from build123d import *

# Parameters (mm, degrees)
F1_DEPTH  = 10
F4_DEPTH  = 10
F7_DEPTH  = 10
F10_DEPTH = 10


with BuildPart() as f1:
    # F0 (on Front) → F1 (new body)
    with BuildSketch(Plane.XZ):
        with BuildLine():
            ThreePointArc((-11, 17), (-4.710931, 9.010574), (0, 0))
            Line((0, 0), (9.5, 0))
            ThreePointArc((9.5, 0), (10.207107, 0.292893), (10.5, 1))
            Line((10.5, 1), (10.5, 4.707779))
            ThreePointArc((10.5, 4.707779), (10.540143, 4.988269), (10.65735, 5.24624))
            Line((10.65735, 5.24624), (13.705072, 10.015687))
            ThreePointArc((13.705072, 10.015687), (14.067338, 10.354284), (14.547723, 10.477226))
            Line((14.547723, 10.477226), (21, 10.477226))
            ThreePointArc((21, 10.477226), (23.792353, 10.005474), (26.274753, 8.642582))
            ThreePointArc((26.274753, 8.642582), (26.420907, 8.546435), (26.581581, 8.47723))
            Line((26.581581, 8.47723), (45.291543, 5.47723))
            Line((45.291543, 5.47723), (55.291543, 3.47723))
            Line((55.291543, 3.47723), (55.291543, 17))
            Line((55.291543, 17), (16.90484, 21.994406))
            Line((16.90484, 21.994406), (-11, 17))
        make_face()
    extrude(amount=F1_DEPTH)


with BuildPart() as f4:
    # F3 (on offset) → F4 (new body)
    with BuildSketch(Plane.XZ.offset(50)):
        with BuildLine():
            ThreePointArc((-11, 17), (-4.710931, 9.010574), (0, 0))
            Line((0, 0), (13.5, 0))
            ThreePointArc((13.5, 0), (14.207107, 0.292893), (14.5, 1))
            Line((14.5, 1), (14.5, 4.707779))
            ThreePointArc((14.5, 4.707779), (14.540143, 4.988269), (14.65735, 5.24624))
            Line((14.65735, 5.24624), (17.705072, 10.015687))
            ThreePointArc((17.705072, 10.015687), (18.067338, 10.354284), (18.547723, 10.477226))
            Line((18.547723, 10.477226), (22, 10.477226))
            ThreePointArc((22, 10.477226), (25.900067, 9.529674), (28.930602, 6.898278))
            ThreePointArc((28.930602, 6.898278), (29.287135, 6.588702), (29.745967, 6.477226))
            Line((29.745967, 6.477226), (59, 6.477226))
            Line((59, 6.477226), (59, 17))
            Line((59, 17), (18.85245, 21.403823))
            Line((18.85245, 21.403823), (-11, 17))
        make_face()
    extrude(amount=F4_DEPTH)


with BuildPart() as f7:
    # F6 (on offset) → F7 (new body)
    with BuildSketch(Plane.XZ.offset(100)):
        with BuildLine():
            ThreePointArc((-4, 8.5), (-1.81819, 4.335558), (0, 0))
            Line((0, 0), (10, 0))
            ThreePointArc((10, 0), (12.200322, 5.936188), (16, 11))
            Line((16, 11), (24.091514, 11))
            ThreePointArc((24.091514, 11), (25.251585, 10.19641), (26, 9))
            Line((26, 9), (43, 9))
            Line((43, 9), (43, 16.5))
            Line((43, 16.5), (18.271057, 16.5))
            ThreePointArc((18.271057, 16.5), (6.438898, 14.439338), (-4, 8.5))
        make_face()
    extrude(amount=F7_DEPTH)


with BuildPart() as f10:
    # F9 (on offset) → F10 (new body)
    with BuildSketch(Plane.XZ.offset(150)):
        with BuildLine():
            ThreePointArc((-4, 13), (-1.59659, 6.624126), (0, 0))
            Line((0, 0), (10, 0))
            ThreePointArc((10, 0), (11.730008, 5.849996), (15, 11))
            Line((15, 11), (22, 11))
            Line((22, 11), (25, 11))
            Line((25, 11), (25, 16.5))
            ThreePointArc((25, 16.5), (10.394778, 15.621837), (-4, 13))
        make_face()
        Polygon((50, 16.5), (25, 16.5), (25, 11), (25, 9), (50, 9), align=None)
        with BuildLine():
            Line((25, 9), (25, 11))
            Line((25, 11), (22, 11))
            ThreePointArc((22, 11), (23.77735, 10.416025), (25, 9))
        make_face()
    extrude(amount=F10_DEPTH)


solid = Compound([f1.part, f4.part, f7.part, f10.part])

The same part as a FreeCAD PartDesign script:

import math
import FreeCAD as App
import Part
import Sketcher
from FreeCAD import Vector
Q = App.Units.Quantity

doc = App.newDocument("Part")
body = doc.addObject("PartDesign::Body", "Body")

# Sketch on XZ plane
sketch1 = body.newObject("Sketcher::SketchObject", "Sketch")
sketch1.AttachmentSupport = (doc.getObject("XZ_Plane"), [""])
sketch1.MapMode = "FlatFace"
sketch1.addGeometry(Part.ArcOfCircle(Part.Circle(Vector(-50.887268, -20.868232, 0), Vector(0, 0, 1), 54.999974), math.radians(22.297921), math.radians(43.512565)), False)
sketch1.addGeometry(Part.LineSegment(Vector(0, 0, 0), Vector(9.5, 0, 0)), False)
sketch1.addGeometry(Part.ArcOfCircle(Part.Circle(Vector(9.500001, 0.999999, 0), Vector(0, 0, 1), 0.999999), math.radians(-90.000043), math.radians(0.000043)), False)
sketch1.addGeometry(Part.LineSegment(Vector(10.5, 1, 0), Vector(10.5, 4.707779, 0)), False)
sketch1.addGeometry(Part.ArcOfCircle(Part.Circle(Vector(11.499994, 4.70778, 0), Vector(0, 0, 1), 0.999994), math.radians(147.420924), math.radians(180.000057)), False)
sketch1.addGeometry(Part.LineSegment(Vector(10.65735, 5.24624, 0), Vector(13.705072, 10.015687, 0)), False)
sketch1.addGeometry(Part.ArcOfCircle(Part.Circle(Vector(14.547723, 9.477226, 0), Vector(0, 0, 1), 1), math.radians(89.999974), math.radians(147.421059)), False)
sketch1.addGeometry(Part.LineSegment(Vector(14.547723, 10.477226, 0), Vector(21, 10.477226, 0)), False)
sketch1.addGeometry(Part.ArcOfCircle(Part.Circle(Vector(21.000001, 1.977233, 0), Vector(0, 0, 1), 8.499993), math.radians(51.642996), math.radians(90.000009)), False)
sketch1.addGeometry(Part.ArcOfCircle(Part.Circle(Vector(26.895308, 9.426735, 0), Vector(0, 0, 1), 0.999992), math.radians(-128.357021), math.radians(-108.284126)), False)
sketch1.addGeometry(Part.LineSegment(Vector(26.581581, 8.47723, 0), Vector(45.291543, 5.47723, 0)), False)
sketch1.addGeometry(Part.LineSegment(Vector(45.291543, 5.47723, 0), Vector(55.291543, 3.47723, 0)), False)
sketch1.addGeometry(Part.LineSegment(Vector(55.291543, 3.47723, 0), Vector(55.291543, 17, 0)), False)
sketch1.addGeometry(Part.LineSegment(Vector(55.291543, 17, 0), Vector(16.90484, 21.994406, 0)), False)
sketch1.addGeometry(Part.LineSegment(Vector(16.90484, 21.994406, 0), Vector(-11, 17, 0)), False)
sketch1.addConstraint(Sketcher.Constraint("Coincident", 0, 1, 1, 1))
sketch1.addConstraint(Sketcher.Constraint("Coincident", 1, 2, 2, 1))
sketch1.addConstraint(Sketcher.Constraint("Coincident", 2, 2, 3, 1))
sketch1.addConstraint(Sketcher.Constraint("Coincident", 3, 2, 4, 2))
sketch1.addConstraint(Sketcher.Constraint("Coincident", 4, 1, 5, 1))
sketch1.addConstraint(Sketcher.Constraint("Coincident", 5, 2, 6, 2))
sketch1.addConstraint(Sketcher.Constraint("Coincident", 6, 1, 7, 1))
sketch1.addConstraint(Sketcher.Constraint("Coincident", 7, 2, 8, 2))
sketch1.addConstraint(Sketcher.Constraint("Coincident", 8, 1, 9, 1))
sketch1.addConstraint(Sketcher.Constraint("Coincident", 9, 2, 10, 1))
sketch1.addConstraint(Sketcher.Constraint("Coincident", 10, 2, 11, 1))
sketch1.addConstraint(Sketcher.Constraint("Coincident", 11, 2, 12, 1))
sketch1.addConstraint(Sketcher.Constraint("Coincident", 12, 2, 13, 1))
sketch1.addConstraint(Sketcher.Constraint("Coincident", 13, 2, 14, 1))
sketch1.addConstraint(Sketcher.Constraint("Coincident", 14, 2, 0, 2))
sketch1.addConstraint(Sketcher.Constraint("Horizontal", 1))
sketch1.addConstraint(Sketcher.Constraint("Vertical", 3))
sketch1.addConstraint(Sketcher.Constraint("Horizontal", 7))
sketch1.addConstraint(Sketcher.Constraint("Vertical", 12))
sketch1.addConstraint(Sketcher.Constraint("Coincident", 0, 1, -1, 1))
sketch1.addConstraint(Sketcher.Constraint("Radius", 2, Q("0.999999 mm")))
sketch1.addConstraint(Sketcher.Constraint("Radius", 6, Q("1 mm")))
sketch1.addConstraint(Sketcher.Constraint("DistanceX", 1, 1, 1, 2, Q("9.5 mm")))
sketch1.addConstraint(Sketcher.Constraint("DistanceX", -1, 1, 8, 3, Q("21.000001 mm")))
sketch1.addConstraint(Sketcher.Constraint("DistanceY", -1, 1, 2, 2, Q("1 mm")))
sketch1.addConstraint(Sketcher.Constraint("DistanceX", -1, 1, 7, 2, Q("21 mm")))
sketch1.addConstraint(Sketcher.Constraint("DistanceY", -1, 1, 12, 2, Q("17 mm")))
sketch1.addConstraint(Sketcher.Constraint("DistanceX", 14, 2, -1, 1, Q("11 mm")))
sketch1.addConstraint(Sketcher.Constraint("DistanceY", -1, 1, 14, 2, Q("17 mm")))
sketch1.addConstraint(Sketcher.Constraint("DistanceX", 1, 2, 2, 2, Q("1 mm")))
sketch1.addConstraint(Sketcher.Constraint("DistanceY", 10, 2, 9, 2, Q("3 mm")))
sketch1.addConstraint(Sketcher.Constraint("DistanceX", 10, 2, 11, 2, Q("10 mm")))
sketch1.addConstraint(Sketcher.Constraint("DistanceY", 11, 2, 10, 2, Q("2 mm")))
sketch1.addConstraint(Sketcher.Constraint("Radius", 0, Q("54.999974 mm")))
sketch1.addConstraint(Sketcher.Constraint("Radius", 4, Q("0.999994 mm")))
sketch1.addConstraint(Sketcher.Constraint("Radius", 8, Q("8.499993 mm")))
sketch1.addConstraint(Sketcher.Constraint("Radius", 9, Q("0.999992 mm")))
sketch1.addConstraint(Sketcher.Constraint("DistanceY", 3, 1, 3, 2, Q("3.707779 mm")))
sketch1.addConstraint(Sketcher.Constraint("DistanceY", 12, 1, 12, 2, Q("13.52277 mm")))
sketch1.addConstraint(Sketcher.Constraint("Distance", 10, Q("18.948949 mm")))
sketch1.addConstraint(Sketcher.Constraint("DistanceX", 7, 1, 7, 2, Q("6.452277 mm")))
sketch1.addConstraint(Sketcher.Constraint("DistanceY", -1, 1, 4, 3, Q("4.70778 mm")))
sketch1.addConstraint(Sketcher.Constraint("DistanceX", -1, 1, 9, 3, Q("26.895308 mm")))
sketch1.addConstraint(Sketcher.Constraint("DistanceX", -1, 1, 4, 1, Q("10.65735 mm")))
sketch1.addConstraint(Sketcher.Constraint("DistanceX", -1, 1, 9, 2, Q("26.581581 mm")))
sketch1.addConstraint(Sketcher.Constraint("DistanceX", -1, 1, 13, 2, Q("16.90484 mm")))
sketch1.addConstraint(Sketcher.Constraint("DistanceX", 4, 3, 6, 3, Q("3.047728 mm")))
sketch1.addConstraint(Sketcher.Constraint("DistanceX", 5, 2, 6, 3, Q("0.842651 mm")))
sketch1.addConstraint(Sketcher.Constraint("DistanceX", 8, 3, 8, 1, Q("5.274752 mm")))
sketch1.addConstraint(Sketcher.Constraint("DistanceY", 6, 1, 13, 2, Q("11.51718 mm")))
pad1 = body.newObject("PartDesign::Pad", "Pad")
pad1.Profile = sketch1
pad1.Length = 10
body2 = doc.addObject("PartDesign::Body", "Body001")

# Sketch on XZ plane
sketch2 = body2.newObject("Sketcher::SketchObject", "Sketch001")
sketch2.AttachmentSupport = (doc.getObject("XZ_Plane001"), [""])
sketch2.MapMode = "FlatFace"
sketch2.AttachmentOffset = App.Placement(Vector(0, 0, 50), App.Rotation())
sketch2.addGeometry(Part.ArcOfCircle(Part.Circle(Vector(-50.887268, -20.868232, 0), Vector(0, 0, 1), 54.999974), math.radians(22.297921), math.radians(43.512565)), False)
sketch2.addGeometry(Part.LineSegment(Vector(0, 0, 0), Vector(13.5, 0, 0)), False)
sketch2.addGeometry(Part.ArcOfCircle(Part.Circle(Vector(13.500001, 0.999999, 0), Vector(0, 0, 1), 0.999999), math.radians(-90.000043), math.radians(0.000043)), False)
sketch2.addGeometry(Part.LineSegment(Vector(14.5, 1, 0), Vector(14.5, 4.707779, 0)), False)
sketch2.addGeometry(Part.ArcOfCircle(Part.Circle(Vector(15.499994, 4.70778, 0), Vector(0, 0, 1), 0.999994), math.radians(147.420924), math.radians(180.000057)), False)
sketch2.addGeometry(Part.LineSegment(Vector(14.65735, 5.24624, 0), Vector(17.705072, 10.015687, 0)), False)
sketch2.addGeometry(Part.ArcOfCircle(Part.Circle(Vector(18.547723, 9.477226, 0), Vector(0, 0, 1), 1), math.radians(89.999974), math.radians(147.421059)), False)
sketch2.addGeometry(Part.LineSegment(Vector(18.547723, 10.477226, 0), Vector(22, 10.477226, 0)), False)
sketch2.addGeometry(Part.ArcOfCircle(Part.Circle(Vector(21.999999, 1.977224, 0), Vector(0, 0, 1), 8.500002), math.radians(35.376543), math.radians(89.999991)), False)
sketch2.addGeometry(Part.ArcOfCircle(Part.Circle(Vector(29.745964, 7.477221, 0), Vector(0, 0, 1), 0.999995), math.radians(-144.623559), math.radians(-89.999826)), False)
sketch2.addGeometry(Part.LineSegment(Vector(29.745967, 6.477226, 0), Vector(59, 6.477226, 0)), False)
sketch2.addGeometry(Part.LineSegment(Vector(59, 6.477226, 0), Vector(59, 17, 0)), False)
sketch2.addGeometry(Part.LineSegment(Vector(59, 17, 0), Vector(18.85245, 21.403823, 0)), False)
sketch2.addGeometry(Part.LineSegment(Vector(18.85245, 21.403823, 0), Vector(-11, 17, 0)), False)
sketch2.addConstraint(Sketcher.Constraint("Coincident", 0, 1, 1, 1))
sketch2.addConstraint(Sketcher.Constraint("Tangent", 1, 2, 2, 1))
sketch2.addConstraint(Sketcher.Constraint("Tangent", 2, 2, 3, 1))
sketch2.addConstraint(Sketcher.Constraint("Tangent", 3, 2, 4, 2))
sketch2.addConstraint(Sketcher.Constraint("Tangent", 4, 1, 5, 1))
sketch2.addConstraint(Sketcher.Constraint("Tangent", 5, 2, 6, 2))
sketch2.addConstraint(Sketcher.Constraint("Tangent", 6, 1, 7, 1))
sketch2.addConstraint(Sketcher.Constraint("Tangent", 7, 2, 8, 2))
sketch2.addConstraint(Sketcher.Constraint("Tangent", 8, 1, 9, 1))
sketch2.addConstraint(Sketcher.Constraint("Coincident", 9, 2, 10, 1))
sketch2.addConstraint(Sketcher.Constraint("Coincident", 10, 2, 11, 1))
sketch2.addConstraint(Sketcher.Constraint("Coincident", 11, 2, 12, 1))
sketch2.addConstraint(Sketcher.Constraint("Coincident", 12, 2, 13, 1))
sketch2.addConstraint(Sketcher.Constraint("Coincident", 13, 2, 0, 2))
sketch2.addConstraint(Sketcher.Constraint("Horizontal", 1))
sketch2.addConstraint(Sketcher.Constraint("Vertical", 3))
sketch2.addConstraint(Sketcher.Constraint("Horizontal", 7))
sketch2.addConstraint(Sketcher.Constraint("Horizontal", 10))
sketch2.addConstraint(Sketcher.Constraint("Vertical", 11))
sketch2.addConstraint(Sketcher.Constraint("Coincident", 0, 1, -1, 1))
sketch2.addConstraint(Sketcher.Constraint("Equal", 2, 6))
sketch2.addConstraint(Sketcher.Constraint("Equal", 4, 9))
sketch2.addConstraint(Sketcher.Constraint("Horizontal", 11, 2, 13, 2))
sketch2.addConstraint(Sketcher.Constraint("Radius", 2, Q("0.999999 mm")))
sketch2.addConstraint(Sketcher.Constraint("DistanceX", 1, 1, 1, 2, Q("13.5 mm")))
sketch2.addConstraint(Sketcher.Constraint("DistanceX", -1, 1, 8, 3, Q("21.999999 mm")))
sketch2.addConstraint(Sketcher.Constraint("DistanceX", -1, 1, 10, 2, Q("59 mm")))
sketch2.addConstraint(Sketcher.Constraint("DistanceY", -1, 1, 11, 2, Q("17 mm")))
sketch2.addConstraint(Sketcher.Constraint("DistanceX", 13, 2, -1, 1, Q("11 mm")))
sketch2.addConstraint(Sketcher.Constraint("DistanceY", 9, 2, 7, 2, Q("4 mm")))
sketch2.addConstraint(Sketcher.Constraint("Radius", 0, Q("54.999974 mm")))
sketch2.addConstraint(Sketcher.Constraint("Radius", 4, Q("0.999994 mm")))
sketch2.addConstraint(Sketcher.Constraint("Radius", 8, Q("8.500002 mm")))
sketch2.addConstraint(Sketcher.Constraint("DistanceY", 3, 1, 3, 2, Q("3.707779 mm")))
sketch2.addConstraint(Sketcher.Constraint("DistanceX", 4, 1, 12, 2, Q("4.1951 mm")))
sketch2.addConstraint(Sketcher.Constraint("DistanceX", 7, 1, 7, 2, Q("3.452277 mm")))
sketch2.addConstraint(Sketcher.Constraint("DistanceX", 10, 1, 10, 2, Q("29.254033 mm")))
sketch2.addConstraint(Sketcher.Constraint("DistanceY", 11, 1, 11, 2, Q("10.522774 mm")))
sketch2.addConstraint(Sketcher.Constraint("Distance", 12, Q("40.388358 mm")))
pad2 = body2.newObject("PartDesign::Pad", "Pad001")
pad2.Profile = sketch2
pad2.Length = 10
body3 = doc.addObject("PartDesign::Body", "Body002")

# Sketch on XZ plane
sketch3 = body3.newObject("Sketcher::SketchObject", "Sketch002")
sketch3.AttachmentSupport = (doc.getObject("XZ_Plane002"), [""])
sketch3.MapMode = "FlatFace"
sketch3.AttachmentOffset = App.Placement(Vector(0, 0, 100), App.Rotation())
sketch3.addGeometry(Part.ArcOfCircle(Part.Circle(Vector(-51.583168, -19.083256, 0), Vector(0, 0, 1), 54.999944), math.radians(20.302015), math.radians(30.100232)), False)
sketch3.addGeometry(Part.LineSegment(Vector(0, 0, 0), Vector(10, 0, 0)), False)
sketch3.addGeometry(Part.ArcOfCircle(Part.Circle(Vector(31.514024, -4.598558, 0), Vector(0, 0, 1), 21.999999), math.radians(134.844325), math.radians(167.934756)), False)
sketch3.addGeometry(Part.LineSegment(Vector(16, 11, 0), Vector(24.091514, 11, 0)), False)
sketch3.addGeometry(Part.ArcOfCircle(Part.Circle(Vector(22.719459, 7.780146, 0), Vector(0, 0, 1), 3.499999), math.radians(20.397415), math.radians(66.920008)), False)
sketch3.addGeometry(Part.LineSegment(Vector(26, 9, 0), Vector(43, 9, 0)), False)
sketch3.addGeometry(Part.LineSegment(Vector(43, 9, 0), Vector(43, 16.5, 0)), False)
sketch3.addGeometry(Part.LineSegment(Vector(43, 16.5, 0), Vector(18.271057, 16.5, 0)), False)
sketch3.addGeometry(Part.ArcOfCircle(Part.Circle(Vector(18.271059, -18.500003, 0), Vector(0, 0, 1), 35.000003), math.radians(90.000003), math.radians(129.517651)), False)
sketch3.addConstraint(Sketcher.Constraint("Coincident", 0, 1, 1, 1))
sketch3.addConstraint(Sketcher.Constraint("Coincident", 1, 2, 2, 2))
sketch3.addConstraint(Sketcher.Constraint("Coincident", 2, 1, 3, 1))
sketch3.addConstraint(Sketcher.Constraint("Coincident", 3, 2, 4, 2))
sketch3.addConstraint(Sketcher.Constraint("Coincident", 4, 1, 5, 1))
sketch3.addConstraint(Sketcher.Constraint("Coincident", 5, 2, 6, 1))
sketch3.addConstraint(Sketcher.Constraint("Coincident", 6, 2, 7, 1))
sketch3.addConstraint(Sketcher.Constraint("Tangent", 7, 2, 8, 1))
sketch3.addConstraint(Sketcher.Constraint("Coincident", 8, 2, 0, 2))
sketch3.addConstraint(Sketcher.Constraint("Horizontal", 1))
sketch3.addConstraint(Sketcher.Constraint("Horizontal", 3))
sketch3.addConstraint(Sketcher.Constraint("Horizontal", 5))
sketch3.addConstraint(Sketcher.Constraint("Vertical", 6))
sketch3.addConstraint(Sketcher.Constraint("Horizontal", 7))
sketch3.addConstraint(Sketcher.Constraint("Coincident", 0, 1, -1, 1))
sketch3.addConstraint(Sketcher.Constraint("Radius", 2, Q("21.999999 mm")))
sketch3.addConstraint(Sketcher.Constraint("Radius", 4, Q("3.499999 mm")))
sketch3.addConstraint(Sketcher.Constraint("DistanceX", 1, 1, 1, 2, Q("10 mm")))
sketch3.addConstraint(Sketcher.Constraint("DistanceX", 5, 1, 5, 2, Q("17 mm")))
sketch3.addConstraint(Sketcher.Constraint("DistanceY", 6, 1, 6, 2, Q("7.5 mm")))
sketch3.addConstraint(Sketcher.Constraint("DistanceX", -1, 1, 2, 1, Q("16 mm")))
sketch3.addConstraint(Sketcher.Constraint("DistanceY", -1, 1, 2, 1, Q("11 mm")))
sketch3.addConstraint(Sketcher.Constraint("DistanceX", -1, 1, 4, 1, Q("26 mm")))
sketch3.addConstraint(Sketcher.Constraint("DistanceY", -1, 1, 4, 1, Q("9 mm")))
sketch3.addConstraint(Sketcher.Constraint("DistanceX", 8, 2, -1, 1, Q("4 mm")))
sketch3.addConstraint(Sketcher.Constraint("DistanceY", 8, 2, 7, 2, Q("8 mm")))
sketch3.addConstraint(Sketcher.Constraint("Radius", 0, Q("54.999944 mm")))
sketch3.addConstraint(Sketcher.Constraint("Radius", 8, Q("35.000003 mm")))
sketch3.addConstraint(Sketcher.Constraint("DistanceY", 0, 3, 4, 3, Q("26.863402 mm")))
pad3 = body3.newObject("PartDesign::Pad", "Pad002")
pad3.Profile = sketch3
pad3.Length = 10
body4 = doc.addObject("PartDesign::Body", "Body003")

# Sketch on XZ plane
sketch4 = body4.newObject("Sketcher::SketchObject", "Sketch003")
sketch4.AttachmentSupport = (doc.getObject("XZ_Plane003"), [""])
sketch4.MapMode = "FlatFace"
sketch4.AttachmentOffset = App.Placement(Vector(0, 0, 150), App.Rotation())
sketch4.addGeometry(Part.ArcOfCircle(Part.Circle(Vector(-54.16438, -9.550578, 0), Vector(0, 0, 1), 54.999942), math.radians(9.999935), math.radians(24.205523)), False)
sketch4.addGeometry(Part.LineSegment(Vector(0, 0, 0), Vector(10, 0, 0)), False)
sketch4.addGeometry(Part.ArcOfCircle(Part.Circle(Vector(31.758069, -3.253668, 0), Vector(0, 0, 1), 21.999998), math.radians(139.616991), math.radians(171.4951)), False)
sketch4.addGeometry(Part.LineSegment(Vector(15, 11, 0), Vector(22, 11, 0)), False)
sketch4.addGeometry(Part.ArcOfCircle(Part.Circle(Vector(21.835899, 7.503848, 0), Vector(0, 0, 1), 3.500001), math.radians(25.307224), math.radians(87.312641)), False)
sketch4.addGeometry(Part.LineSegment(Vector(25, 9, 0), Vector(50, 9, 0)), False)
sketch4.addGeometry(Part.LineSegment(Vector(50, 9, 0), Vector(50, 16.5, 0)), False)
sketch4.addGeometry(Part.LineSegment(Vector(50, 16.5, 0), Vector(25, 16.5, 0)), False)
sketch4.addGeometry(Part.ArcOfCircle(Part.Circle(Vector(24.999994, -105.392809, 0), Vector(0, 0, 1), 121.892809), math.radians(89.999997), math.radians(103.76345)), False)
sketch4.addConstraint(Sketcher.Constraint("Coincident", 0, 1, 1, 1))
sketch4.addConstraint(Sketcher.Constraint("Coincident", 1, 2, 2, 2))
sketch4.addConstraint(Sketcher.Constraint("Coincident", 2, 1, 3, 1))
sketch4.addConstraint(Sketcher.Constraint("Coincident", 3, 2, 4, 2))
sketch4.addConstraint(Sketcher.Constraint("Coincident", 4, 1, 5, 1))
sketch4.addConstraint(Sketcher.Constraint("Coincident", 5, 2, 6, 1))
sketch4.addConstraint(Sketcher.Constraint("Coincident", 6, 2, 7, 1))
sketch4.addConstraint(Sketcher.Constraint("Tangent", 7, 2, 8, 1))
sketch4.addConstraint(Sketcher.Constraint("Coincident", 8, 2, 0, 2))
sketch4.addConstraint(Sketcher.Constraint("Horizontal", 1))
sketch4.addConstraint(Sketcher.Constraint("Horizontal", 3))
sketch4.addConstraint(Sketcher.Constraint("Horizontal", 5))
sketch4.addConstraint(Sketcher.Constraint("Vertical", 6))
sketch4.addConstraint(Sketcher.Constraint("Horizontal", 7))
sketch4.addConstraint(Sketcher.Constraint("Coincident", 0, 1, -1, 1))
sketch4.addConstraint(Sketcher.Constraint("Vertical", 4, 1, 7, 2))
sketch4.addConstraint(Sketcher.Constraint("Radius", 4, Q("3.500001 mm")))
sketch4.addConstraint(Sketcher.Constraint("DistanceX", 1, 1, 1, 2, Q("10 mm")))
sketch4.addConstraint(Sketcher.Constraint("DistanceX", 3, 1, 3, 2, Q("7 mm")))
sketch4.addConstraint(Sketcher.Constraint("DistanceX", 5, 1, 5, 2, Q("25 mm")))
sketch4.addConstraint(Sketcher.Constraint("DistanceY", 6, 1, 6, 2, Q("7.5 mm")))
sketch4.addConstraint(Sketcher.Constraint("DistanceX", -1, 1, 2, 1, Q("15 mm")))
sketch4.addConstraint(Sketcher.Constraint("DistanceY", -1, 1, 2, 1, Q("11 mm")))
sketch4.addConstraint(Sketcher.Constraint("DistanceX", -1, 1, 4, 1, Q("25 mm")))
sketch4.addConstraint(Sketcher.Constraint("DistanceY", -1, 1, 4, 1, Q("9 mm")))
sketch4.addConstraint(Sketcher.Constraint("DistanceX", 8, 2, -1, 1, Q("4 mm")))
sketch4.addConstraint(Sketcher.Constraint("Radius", 0, Q("54.999942 mm")))
sketch4.addConstraint(Sketcher.Constraint("Radius", 8, Q("121.892809 mm")))
sketch4.addConstraint(Sketcher.Constraint("Radius", 2, Q("21.999998 mm")))
pad4 = body4.newObject("PartDesign::Pad", "Pad003")
pad4.Profile = sketch4
pad4.Length = 10

doc.recompute()
